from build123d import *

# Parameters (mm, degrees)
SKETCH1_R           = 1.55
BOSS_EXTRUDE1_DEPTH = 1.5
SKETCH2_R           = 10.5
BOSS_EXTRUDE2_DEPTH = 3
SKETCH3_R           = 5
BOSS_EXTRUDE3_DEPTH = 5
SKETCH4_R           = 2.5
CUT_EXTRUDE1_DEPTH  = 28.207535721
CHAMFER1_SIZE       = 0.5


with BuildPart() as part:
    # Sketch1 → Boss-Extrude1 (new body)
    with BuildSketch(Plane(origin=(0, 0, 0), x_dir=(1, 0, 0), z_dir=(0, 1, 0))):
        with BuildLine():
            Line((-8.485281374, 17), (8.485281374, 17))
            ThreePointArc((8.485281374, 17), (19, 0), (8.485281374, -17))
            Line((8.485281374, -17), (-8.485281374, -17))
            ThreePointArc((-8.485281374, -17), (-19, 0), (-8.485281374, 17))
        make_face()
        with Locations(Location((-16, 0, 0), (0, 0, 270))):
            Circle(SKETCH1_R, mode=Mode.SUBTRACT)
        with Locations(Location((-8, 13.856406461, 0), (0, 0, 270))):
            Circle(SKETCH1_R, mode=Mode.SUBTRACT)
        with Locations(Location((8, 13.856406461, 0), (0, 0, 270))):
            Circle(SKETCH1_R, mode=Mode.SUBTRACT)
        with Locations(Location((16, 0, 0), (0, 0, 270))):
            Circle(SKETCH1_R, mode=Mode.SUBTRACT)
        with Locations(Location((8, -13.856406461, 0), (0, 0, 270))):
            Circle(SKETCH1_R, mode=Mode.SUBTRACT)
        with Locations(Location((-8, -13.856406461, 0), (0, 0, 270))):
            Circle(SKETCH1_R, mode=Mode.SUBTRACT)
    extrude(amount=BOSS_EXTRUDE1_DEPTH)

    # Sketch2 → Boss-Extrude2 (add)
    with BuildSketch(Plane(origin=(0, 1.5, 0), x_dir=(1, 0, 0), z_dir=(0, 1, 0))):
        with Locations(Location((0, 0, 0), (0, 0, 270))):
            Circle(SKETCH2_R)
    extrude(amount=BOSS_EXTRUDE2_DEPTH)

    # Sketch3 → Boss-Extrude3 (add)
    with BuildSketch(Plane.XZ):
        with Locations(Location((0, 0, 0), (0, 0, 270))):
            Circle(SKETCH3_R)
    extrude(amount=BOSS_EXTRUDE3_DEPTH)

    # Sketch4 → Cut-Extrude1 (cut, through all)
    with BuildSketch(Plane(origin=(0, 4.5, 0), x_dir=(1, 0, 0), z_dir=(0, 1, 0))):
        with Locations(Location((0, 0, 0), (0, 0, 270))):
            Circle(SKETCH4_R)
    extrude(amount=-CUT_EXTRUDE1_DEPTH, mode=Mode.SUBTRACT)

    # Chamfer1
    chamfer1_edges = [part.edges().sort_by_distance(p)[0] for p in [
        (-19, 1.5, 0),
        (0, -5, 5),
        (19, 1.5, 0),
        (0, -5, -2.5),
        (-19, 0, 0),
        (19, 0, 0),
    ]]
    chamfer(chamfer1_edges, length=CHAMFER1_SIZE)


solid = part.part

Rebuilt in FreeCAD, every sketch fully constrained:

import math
import FreeCAD as App
import Part
import Sketcher


def edges_at(feature, points):
    """Names of the edges that pass closest to the given points."""
    edges = feature.Shape.Edges
    near = lambda p: min(range(len(edges)), key=lambda i: edges[i].distToShape(Part.Vertex(*p))[0])
    return sorted({f"Edge{near(p) + 1}" for p in points})

doc = App.newDocument("Part")
body = doc.addObject("PartDesign::Body", "Body")

# Sketch on XZ plane
sketch1 = body.newObject("Sketcher::SketchObject", "Sketch")
sketch1.AttachmentSupport = (doc.getObject("XZ_Plane"), [""])
sketch1.MapMode = "FlatFace"
sketch1.addGeometry(Part.LineSegment(App.Vector(8.485281, -17, 0), App.Vector(-8.485281, -17, 0)), False)
sketch1.addGeometry(Part.ArcOfCircle(Part.Circle(App.Vector(0, 0, 0), App.Vector(0, 0, 1), 19), math.radians(116.525352), math.radians(243.474648)), False)
sketch1.addGeometry(Part.LineSegment(App.Vector(-8.485281, 17, 0), App.Vector(8.485281, 17, 0)), False)
sketch1.addGeometry(Part.ArcOfCircle(Part.Circle(App.Vector(0, 0, 0), App.Vector(0, 0, 1), 19), math.radians(-63.474648), math.radians(63.474648)), False)
sketch1.addGeometry(Part.Circle(App.Vector(8, 13.856406, 0), App.Vector(0, 0, 1), 1.55), False)
sketch1.addGeometry(Part.Circle(App.Vector(-8, 13.856406, 0), App.Vector(0, 0, 1), 1.55), False)
sketch1.addGeometry(Part.Circle(App.Vector(16, 0, 0), App.Vector(0, 0, 1), 1.55), False)
sketch1.addGeometry(Part.Circle(App.Vector(8, -13.856406, 0), App.Vector(0, 0, 1), 1.55), False)
sketch1.addGeometry(Part.Circle(App.Vector(-16, 0, 0), App.Vector(0, 0, 1), 1.55), False)
sketch1.addGeometry(Part.Circle(App.Vector(-8, -13.856406, 0), App.Vector(0, 0, 1), 1.55), False)
sketch1.addConstraint(Sketcher.Constraint("Coincident", 0, 2, 1, 2))
sketch1.addConstraint(Sketcher.Constraint("Coincident", 1, 1, 2, 1))
sketch1.addConstraint(Sketcher.Constraint("Coincident", 2, 2, 3, 2))
sketch1.addConstraint(Sketcher.Constraint("Coincident", 3, 1, 0, 1))
sketch1.addConstraint(Sketcher.Constraint("Horizontal", 0))
sketch1.addConstraint(Sketcher.Constraint("Horizontal", 2))
sketch1.addConstraint(Sketcher.Constraint("Coincident", 1, 3, -1, 1))
sketch1.addConstraint(Sketcher.Constraint("Coincident", 3, 3, -1, 1))
sketch1.addConstraint(Sketcher.Constraint("Equal", 1, 3))
sketch1.addConstraint(Sketcher.Constraint("Equal", 4, 5))
sketch1.addConstraint(Sketcher.Constraint("Equal", 5, 6))
sketch1.addConstraint(Sketcher.Constraint("Equal", 6, 7))
sketch1.addConstraint(Sketcher.Constraint("Equal", 7, 8))
sketch1.addConstraint(Sketcher.Constraint("Equal", 8, 9))
sketch1.addConstraint(Sketcher.Constraint("Symmetric", 5, 3, 7, 3, -1, 1))
sketch1.addConstraint(Sketcher.Constraint("Symmetric", 6, 3, 8, 3, -1, 1))
sketch1.addConstraint(Sketcher.Constraint("Symmetric", 4, 3, 9, 3, -1, 1))
sketch1.addConstraint(Sketcher.Constraint("Symmetric", 4, 3, 5, 3, -2))
sketch1.addConstraint(Sketcher.Constraint("PointOnObject", 6, 3, -1))
sketch1.addConstraint(Sketcher.Constraint("Vertical", 0, 2, 1, 1))
sketch1.addConstraint(Sketcher.Constraint("Radius", 1, 19.0))
sketch1.addConstraint(Sketcher.Constraint("Diameter", 4, 3.1))
sketch1.addConstraint(Sketcher.Constraint("DistanceX", -1, 1, 4, 3, 8.0))
sketch1.addConstraint(Sketcher.Constraint("DistanceX", -1, 1, 6, 3, 16.0))
sketch1.addConstraint(Sketcher.Constraint("DistanceY", 0, 2, -1, 1, 17.0))
sketch1.addConstraint(Sketcher.Constraint("DistanceY", -1, 1, 4, 3, 13.856406))
pad1 = body.newObject("PartDesign::Pad", "Pad")
pad1.Profile = sketch1
pad1.Length = 1.5
pad1.Reversed = True

# Sketch on XZ plane
sketch2 = body.newObject("Sketcher::SketchObject", "Sketch001")
sketch2.AttachmentSupport = (doc.getObject("XZ_Plane"), [""])
sketch2.MapMode = "FlatFace"
sketch2.AttachmentOffset = App.Placement(App.Vector(0, 0, -1.5), App.Rotation())
sketch2.addGeometry(Part.Circle(App.Vector(0, 0, 0), App.Vector(0, 0, 1), 10.5), False)
sketch2.addConstraint(Sketcher.Constraint("Coincident", 0, 3, -1, 1))
sketch2.addConstraint(Sketcher.Constraint("Diameter", 0, 21.0))
pad2 = body.newObject("PartDesign::Pad", "Pad001")
pad2.Profile = sketch2
pad2.Length = 3
pad2.Reversed = True

# Sketch on XZ plane
sketch3 = body.newObject("Sketcher::SketchObject", "Sketch002")
sketch3.AttachmentSupport = (doc.getObject("XZ_Plane"), [""])
sketch3.MapMode = "FlatFace"
sketch3.addGeometry(Part.Circle(App.Vector(0, 0, 0), App.Vector(0, 0, 1), 5), False)
sketch3.addConstraint(Sketcher.Constraint("Coincident", 0, 3, -1, 1))
sketch3.addConstraint(Sketcher.Constraint("Diameter", 0, 10.0))
pad3 = body.newObject("PartDesign::Pad", "Pad002")
pad3.Profile = sketch3
pad3.Length = 5

# Sketch on XZ plane
sketch4 = body.newObject("Sketcher::SketchObject", "Sketch003")
sketch4.AttachmentSupport = (doc.getObject("XZ_Plane"), [""])
sketch4.MapMode = "FlatFace"
sketch4.AttachmentOffset = App.Placement(App.Vector(0, 0, -4.5), App.Rotation())
sketch4.addGeometry(Part.Circle(App.Vector(0, 0, 0), App.Vector(0, 0, 1), 2.5), False)
sketch4.addConstraint(Sketcher.Constraint("Coincident", 0, 3, -1, 1))
sketch4.addConstraint(Sketcher.Constraint("Diameter", 0, 5.0))
pocket1 = body.newObject("PartDesign::Pocket", "Pocket")
pocket1.Profile = sketch4
pocket1.Type = "ThroughAll"
pocket1.Reversed = True
doc.recompute()

chamfer = body.newObject("PartDesign::Chamfer", "Chamfer")
chamfer.Base = (pocket1, edges_at(pocket1, [
    (-19, 1.5, 0),
    (0, -5, 5),
    (19, 1.5, 0),
    (0, -5, -2.5),
    (-19, 0, 0),
    (19, 0, 0),
]))
chamfer.Size = 0.5

doc.recompute()
